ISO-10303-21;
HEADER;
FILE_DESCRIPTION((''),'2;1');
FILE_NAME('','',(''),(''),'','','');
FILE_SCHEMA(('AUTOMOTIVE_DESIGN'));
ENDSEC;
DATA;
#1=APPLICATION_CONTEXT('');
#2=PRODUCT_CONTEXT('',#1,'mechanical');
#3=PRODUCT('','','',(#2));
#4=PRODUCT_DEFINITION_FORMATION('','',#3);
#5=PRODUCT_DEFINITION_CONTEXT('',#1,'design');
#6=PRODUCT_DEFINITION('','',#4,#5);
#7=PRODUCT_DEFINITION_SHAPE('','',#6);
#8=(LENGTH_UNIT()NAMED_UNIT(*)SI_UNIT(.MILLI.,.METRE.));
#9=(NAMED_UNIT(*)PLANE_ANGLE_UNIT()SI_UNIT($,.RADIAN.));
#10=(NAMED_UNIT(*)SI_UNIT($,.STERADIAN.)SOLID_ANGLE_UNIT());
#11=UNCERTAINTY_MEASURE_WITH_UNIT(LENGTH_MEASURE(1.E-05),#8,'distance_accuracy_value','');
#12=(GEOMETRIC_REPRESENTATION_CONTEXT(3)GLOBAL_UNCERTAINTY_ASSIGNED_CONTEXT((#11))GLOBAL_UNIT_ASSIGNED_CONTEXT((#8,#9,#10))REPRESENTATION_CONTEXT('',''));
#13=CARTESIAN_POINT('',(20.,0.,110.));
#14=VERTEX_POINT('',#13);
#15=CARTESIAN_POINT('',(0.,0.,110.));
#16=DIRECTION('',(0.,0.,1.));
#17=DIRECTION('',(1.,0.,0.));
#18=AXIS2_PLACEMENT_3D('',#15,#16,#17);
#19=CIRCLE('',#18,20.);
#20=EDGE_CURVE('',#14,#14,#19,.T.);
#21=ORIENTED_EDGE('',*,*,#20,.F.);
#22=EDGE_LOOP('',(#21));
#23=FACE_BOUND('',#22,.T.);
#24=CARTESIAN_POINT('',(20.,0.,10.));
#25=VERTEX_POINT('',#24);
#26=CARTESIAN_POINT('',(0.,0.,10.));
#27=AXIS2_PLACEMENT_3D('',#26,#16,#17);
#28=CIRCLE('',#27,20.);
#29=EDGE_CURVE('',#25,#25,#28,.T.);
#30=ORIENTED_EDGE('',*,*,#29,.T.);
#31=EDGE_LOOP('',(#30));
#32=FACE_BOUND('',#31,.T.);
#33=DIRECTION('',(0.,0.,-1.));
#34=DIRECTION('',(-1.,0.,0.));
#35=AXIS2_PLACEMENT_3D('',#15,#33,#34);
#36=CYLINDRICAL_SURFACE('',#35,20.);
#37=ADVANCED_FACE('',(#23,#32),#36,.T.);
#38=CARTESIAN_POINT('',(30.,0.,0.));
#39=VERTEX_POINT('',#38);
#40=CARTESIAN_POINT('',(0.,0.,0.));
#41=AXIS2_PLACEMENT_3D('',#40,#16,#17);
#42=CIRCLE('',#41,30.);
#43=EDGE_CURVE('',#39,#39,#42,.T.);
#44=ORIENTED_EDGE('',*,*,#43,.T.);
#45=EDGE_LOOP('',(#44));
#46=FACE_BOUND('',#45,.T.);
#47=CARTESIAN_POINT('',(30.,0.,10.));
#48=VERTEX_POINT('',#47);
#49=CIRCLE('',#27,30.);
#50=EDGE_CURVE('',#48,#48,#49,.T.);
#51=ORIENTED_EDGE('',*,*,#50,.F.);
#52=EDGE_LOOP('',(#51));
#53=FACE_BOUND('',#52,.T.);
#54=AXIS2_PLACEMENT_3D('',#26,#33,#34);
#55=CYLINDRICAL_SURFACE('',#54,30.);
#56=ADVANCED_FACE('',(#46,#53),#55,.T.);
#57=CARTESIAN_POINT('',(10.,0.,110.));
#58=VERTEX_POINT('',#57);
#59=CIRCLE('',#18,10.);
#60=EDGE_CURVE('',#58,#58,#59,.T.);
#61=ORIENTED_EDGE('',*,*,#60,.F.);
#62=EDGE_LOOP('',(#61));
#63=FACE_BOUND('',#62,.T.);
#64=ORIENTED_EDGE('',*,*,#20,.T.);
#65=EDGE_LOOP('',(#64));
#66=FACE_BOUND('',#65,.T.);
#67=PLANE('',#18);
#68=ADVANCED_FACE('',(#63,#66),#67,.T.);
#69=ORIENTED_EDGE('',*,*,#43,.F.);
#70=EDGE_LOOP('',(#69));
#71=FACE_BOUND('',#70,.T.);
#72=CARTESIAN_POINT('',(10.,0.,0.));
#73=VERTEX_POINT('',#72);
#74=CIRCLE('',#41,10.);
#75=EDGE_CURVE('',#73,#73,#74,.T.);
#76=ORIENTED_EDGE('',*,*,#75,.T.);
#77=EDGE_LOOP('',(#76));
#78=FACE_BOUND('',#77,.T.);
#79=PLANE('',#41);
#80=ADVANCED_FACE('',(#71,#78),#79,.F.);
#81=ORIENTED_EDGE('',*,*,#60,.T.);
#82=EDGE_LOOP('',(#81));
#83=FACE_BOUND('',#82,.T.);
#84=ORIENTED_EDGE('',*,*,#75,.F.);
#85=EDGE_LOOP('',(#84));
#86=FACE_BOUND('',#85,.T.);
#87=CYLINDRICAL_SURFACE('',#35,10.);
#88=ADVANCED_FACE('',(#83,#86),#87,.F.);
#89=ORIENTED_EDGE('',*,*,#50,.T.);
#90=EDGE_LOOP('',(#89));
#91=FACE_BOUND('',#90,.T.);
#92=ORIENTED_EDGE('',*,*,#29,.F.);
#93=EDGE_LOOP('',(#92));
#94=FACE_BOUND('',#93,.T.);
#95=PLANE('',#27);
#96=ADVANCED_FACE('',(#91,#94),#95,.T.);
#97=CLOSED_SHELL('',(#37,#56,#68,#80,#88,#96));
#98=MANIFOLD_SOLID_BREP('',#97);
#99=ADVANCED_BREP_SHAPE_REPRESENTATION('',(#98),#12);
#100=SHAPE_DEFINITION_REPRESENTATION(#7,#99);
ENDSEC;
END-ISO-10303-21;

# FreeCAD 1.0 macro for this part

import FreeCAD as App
import Part
import Sketcher
Q = App.Units.Quantity

doc = App.newDocument("Part")
params = doc.addObject("Spreadsheet::Sheet", "Params")
for row, (alias, value) in enumerate([
    ("sketch1_diameter", "40 mm"),
    ("sketch1_diameter2", "20 mm"),
    ("pad1_length", "110 mm"),
    ("sketch2_diameter", "60 mm"),
    ("pad2_length", "10 mm"),
    ("sketch3_diameter", "20 mm"),
    ("pocket1_length", "10 mm"),
], start=1):
    params.set(f"A{row}", alias)
    params.set(f"B{row}", "=" + value)
    params.setAlias(f"B{row}", alias)

body = doc.addObject("PartDesign::Body", "Body")

# Sketch on XY plane
sketch1 = body.newObject("Sketcher::SketchObject", "Sketch")
sketch1.AttachmentSupport = (doc.getObject("XY_Plane"), [""])
sketch1.MapMode = "FlatFace"
sketch1.addGeometry(Part.Circle(App.Vector(0, 0, 0), App.Vector(0, 0, 1), 20), False)
sketch1.addGeometry(Part.Circle(App.Vector(0, 0, 0), App.Vector(0, 0, 1), 10), False)
sketch1.addConstraint(Sketcher.Constraint("Coincident", 0, 3, -1, 1))
sketch1.addConstraint(Sketcher.Constraint("Coincident", 1, 3, -1, 1))
sketch1.addConstraint(Sketcher.Constraint("Diameter", 0, Q("40 mm")))
sketch1.addConstraint(Sketcher.Constraint("Diameter", 1, Q("20 mm")))
sketch1.setExpression("Constraints[2]", "Params.sketch1_diameter")
sketch1.setExpression("Constraints[3]", "Params.sketch1_diameter2")
pad1 = body.newObject("PartDesign::Pad", "Pad")
pad1.Profile = sketch1
pad1.setExpression("Length", "Params.pad1_length")

# Sketch on XY plane
sketch2 = body.newObject("Sketcher::SketchObject", "Sketch001")
sketch2.AttachmentSupport = (doc.getObject("XY_Plane"), [""])
sketch2.MapMode = "FlatFace"
sketch2.addGeometry(Part.Circle(App.Vector(0, 0, 0), App.Vector(0, 0, 1), 30), False)
sketch2.addConstraint(Sketcher.Constraint("Coincident", 0, 3, -1, 1))
sketch2.addConstraint(Sketcher.Constraint("Diameter", 0, Q("60 mm")))
sketch2.setExpression("Constraints[1]", "Params.sketch2_diameter")
pad2 = body.newObject("PartDesign::Pad", "Pad001")
pad2.Profile = sketch2
pad2.setExpression("Length", "Params.pad2_length")

# Sketch on XY plane
sketch3 = body.newObject("Sketcher::SketchObject", "Sketch002")
sketch3.AttachmentSupport = (doc.getObject("XY_Plane"), [""])
sketch3.MapMode = "FlatFace"
sketch3.addGeometry(Part.Circle(App.Vector(0, 0, 0), App.Vector(0, 0, 1), 10), False)
sketch3.addConstraint(Sketcher.Constraint("Coincident", 0, 3, -1, 1))
sketch3.addConstraint(Sketcher.Constraint("Diameter", 0, Q("20 mm")))
sketch3.setExpression("Constraints[1]", "Params.sketch3_diameter")
pocket1 = body.newObject("PartDesign::Pocket", "Pocket")
pocket1.Profile = sketch3
pocket1.setExpression("Length", "Params.pocket1_length")
pocket1.Reversed = True

doc.recompute()
